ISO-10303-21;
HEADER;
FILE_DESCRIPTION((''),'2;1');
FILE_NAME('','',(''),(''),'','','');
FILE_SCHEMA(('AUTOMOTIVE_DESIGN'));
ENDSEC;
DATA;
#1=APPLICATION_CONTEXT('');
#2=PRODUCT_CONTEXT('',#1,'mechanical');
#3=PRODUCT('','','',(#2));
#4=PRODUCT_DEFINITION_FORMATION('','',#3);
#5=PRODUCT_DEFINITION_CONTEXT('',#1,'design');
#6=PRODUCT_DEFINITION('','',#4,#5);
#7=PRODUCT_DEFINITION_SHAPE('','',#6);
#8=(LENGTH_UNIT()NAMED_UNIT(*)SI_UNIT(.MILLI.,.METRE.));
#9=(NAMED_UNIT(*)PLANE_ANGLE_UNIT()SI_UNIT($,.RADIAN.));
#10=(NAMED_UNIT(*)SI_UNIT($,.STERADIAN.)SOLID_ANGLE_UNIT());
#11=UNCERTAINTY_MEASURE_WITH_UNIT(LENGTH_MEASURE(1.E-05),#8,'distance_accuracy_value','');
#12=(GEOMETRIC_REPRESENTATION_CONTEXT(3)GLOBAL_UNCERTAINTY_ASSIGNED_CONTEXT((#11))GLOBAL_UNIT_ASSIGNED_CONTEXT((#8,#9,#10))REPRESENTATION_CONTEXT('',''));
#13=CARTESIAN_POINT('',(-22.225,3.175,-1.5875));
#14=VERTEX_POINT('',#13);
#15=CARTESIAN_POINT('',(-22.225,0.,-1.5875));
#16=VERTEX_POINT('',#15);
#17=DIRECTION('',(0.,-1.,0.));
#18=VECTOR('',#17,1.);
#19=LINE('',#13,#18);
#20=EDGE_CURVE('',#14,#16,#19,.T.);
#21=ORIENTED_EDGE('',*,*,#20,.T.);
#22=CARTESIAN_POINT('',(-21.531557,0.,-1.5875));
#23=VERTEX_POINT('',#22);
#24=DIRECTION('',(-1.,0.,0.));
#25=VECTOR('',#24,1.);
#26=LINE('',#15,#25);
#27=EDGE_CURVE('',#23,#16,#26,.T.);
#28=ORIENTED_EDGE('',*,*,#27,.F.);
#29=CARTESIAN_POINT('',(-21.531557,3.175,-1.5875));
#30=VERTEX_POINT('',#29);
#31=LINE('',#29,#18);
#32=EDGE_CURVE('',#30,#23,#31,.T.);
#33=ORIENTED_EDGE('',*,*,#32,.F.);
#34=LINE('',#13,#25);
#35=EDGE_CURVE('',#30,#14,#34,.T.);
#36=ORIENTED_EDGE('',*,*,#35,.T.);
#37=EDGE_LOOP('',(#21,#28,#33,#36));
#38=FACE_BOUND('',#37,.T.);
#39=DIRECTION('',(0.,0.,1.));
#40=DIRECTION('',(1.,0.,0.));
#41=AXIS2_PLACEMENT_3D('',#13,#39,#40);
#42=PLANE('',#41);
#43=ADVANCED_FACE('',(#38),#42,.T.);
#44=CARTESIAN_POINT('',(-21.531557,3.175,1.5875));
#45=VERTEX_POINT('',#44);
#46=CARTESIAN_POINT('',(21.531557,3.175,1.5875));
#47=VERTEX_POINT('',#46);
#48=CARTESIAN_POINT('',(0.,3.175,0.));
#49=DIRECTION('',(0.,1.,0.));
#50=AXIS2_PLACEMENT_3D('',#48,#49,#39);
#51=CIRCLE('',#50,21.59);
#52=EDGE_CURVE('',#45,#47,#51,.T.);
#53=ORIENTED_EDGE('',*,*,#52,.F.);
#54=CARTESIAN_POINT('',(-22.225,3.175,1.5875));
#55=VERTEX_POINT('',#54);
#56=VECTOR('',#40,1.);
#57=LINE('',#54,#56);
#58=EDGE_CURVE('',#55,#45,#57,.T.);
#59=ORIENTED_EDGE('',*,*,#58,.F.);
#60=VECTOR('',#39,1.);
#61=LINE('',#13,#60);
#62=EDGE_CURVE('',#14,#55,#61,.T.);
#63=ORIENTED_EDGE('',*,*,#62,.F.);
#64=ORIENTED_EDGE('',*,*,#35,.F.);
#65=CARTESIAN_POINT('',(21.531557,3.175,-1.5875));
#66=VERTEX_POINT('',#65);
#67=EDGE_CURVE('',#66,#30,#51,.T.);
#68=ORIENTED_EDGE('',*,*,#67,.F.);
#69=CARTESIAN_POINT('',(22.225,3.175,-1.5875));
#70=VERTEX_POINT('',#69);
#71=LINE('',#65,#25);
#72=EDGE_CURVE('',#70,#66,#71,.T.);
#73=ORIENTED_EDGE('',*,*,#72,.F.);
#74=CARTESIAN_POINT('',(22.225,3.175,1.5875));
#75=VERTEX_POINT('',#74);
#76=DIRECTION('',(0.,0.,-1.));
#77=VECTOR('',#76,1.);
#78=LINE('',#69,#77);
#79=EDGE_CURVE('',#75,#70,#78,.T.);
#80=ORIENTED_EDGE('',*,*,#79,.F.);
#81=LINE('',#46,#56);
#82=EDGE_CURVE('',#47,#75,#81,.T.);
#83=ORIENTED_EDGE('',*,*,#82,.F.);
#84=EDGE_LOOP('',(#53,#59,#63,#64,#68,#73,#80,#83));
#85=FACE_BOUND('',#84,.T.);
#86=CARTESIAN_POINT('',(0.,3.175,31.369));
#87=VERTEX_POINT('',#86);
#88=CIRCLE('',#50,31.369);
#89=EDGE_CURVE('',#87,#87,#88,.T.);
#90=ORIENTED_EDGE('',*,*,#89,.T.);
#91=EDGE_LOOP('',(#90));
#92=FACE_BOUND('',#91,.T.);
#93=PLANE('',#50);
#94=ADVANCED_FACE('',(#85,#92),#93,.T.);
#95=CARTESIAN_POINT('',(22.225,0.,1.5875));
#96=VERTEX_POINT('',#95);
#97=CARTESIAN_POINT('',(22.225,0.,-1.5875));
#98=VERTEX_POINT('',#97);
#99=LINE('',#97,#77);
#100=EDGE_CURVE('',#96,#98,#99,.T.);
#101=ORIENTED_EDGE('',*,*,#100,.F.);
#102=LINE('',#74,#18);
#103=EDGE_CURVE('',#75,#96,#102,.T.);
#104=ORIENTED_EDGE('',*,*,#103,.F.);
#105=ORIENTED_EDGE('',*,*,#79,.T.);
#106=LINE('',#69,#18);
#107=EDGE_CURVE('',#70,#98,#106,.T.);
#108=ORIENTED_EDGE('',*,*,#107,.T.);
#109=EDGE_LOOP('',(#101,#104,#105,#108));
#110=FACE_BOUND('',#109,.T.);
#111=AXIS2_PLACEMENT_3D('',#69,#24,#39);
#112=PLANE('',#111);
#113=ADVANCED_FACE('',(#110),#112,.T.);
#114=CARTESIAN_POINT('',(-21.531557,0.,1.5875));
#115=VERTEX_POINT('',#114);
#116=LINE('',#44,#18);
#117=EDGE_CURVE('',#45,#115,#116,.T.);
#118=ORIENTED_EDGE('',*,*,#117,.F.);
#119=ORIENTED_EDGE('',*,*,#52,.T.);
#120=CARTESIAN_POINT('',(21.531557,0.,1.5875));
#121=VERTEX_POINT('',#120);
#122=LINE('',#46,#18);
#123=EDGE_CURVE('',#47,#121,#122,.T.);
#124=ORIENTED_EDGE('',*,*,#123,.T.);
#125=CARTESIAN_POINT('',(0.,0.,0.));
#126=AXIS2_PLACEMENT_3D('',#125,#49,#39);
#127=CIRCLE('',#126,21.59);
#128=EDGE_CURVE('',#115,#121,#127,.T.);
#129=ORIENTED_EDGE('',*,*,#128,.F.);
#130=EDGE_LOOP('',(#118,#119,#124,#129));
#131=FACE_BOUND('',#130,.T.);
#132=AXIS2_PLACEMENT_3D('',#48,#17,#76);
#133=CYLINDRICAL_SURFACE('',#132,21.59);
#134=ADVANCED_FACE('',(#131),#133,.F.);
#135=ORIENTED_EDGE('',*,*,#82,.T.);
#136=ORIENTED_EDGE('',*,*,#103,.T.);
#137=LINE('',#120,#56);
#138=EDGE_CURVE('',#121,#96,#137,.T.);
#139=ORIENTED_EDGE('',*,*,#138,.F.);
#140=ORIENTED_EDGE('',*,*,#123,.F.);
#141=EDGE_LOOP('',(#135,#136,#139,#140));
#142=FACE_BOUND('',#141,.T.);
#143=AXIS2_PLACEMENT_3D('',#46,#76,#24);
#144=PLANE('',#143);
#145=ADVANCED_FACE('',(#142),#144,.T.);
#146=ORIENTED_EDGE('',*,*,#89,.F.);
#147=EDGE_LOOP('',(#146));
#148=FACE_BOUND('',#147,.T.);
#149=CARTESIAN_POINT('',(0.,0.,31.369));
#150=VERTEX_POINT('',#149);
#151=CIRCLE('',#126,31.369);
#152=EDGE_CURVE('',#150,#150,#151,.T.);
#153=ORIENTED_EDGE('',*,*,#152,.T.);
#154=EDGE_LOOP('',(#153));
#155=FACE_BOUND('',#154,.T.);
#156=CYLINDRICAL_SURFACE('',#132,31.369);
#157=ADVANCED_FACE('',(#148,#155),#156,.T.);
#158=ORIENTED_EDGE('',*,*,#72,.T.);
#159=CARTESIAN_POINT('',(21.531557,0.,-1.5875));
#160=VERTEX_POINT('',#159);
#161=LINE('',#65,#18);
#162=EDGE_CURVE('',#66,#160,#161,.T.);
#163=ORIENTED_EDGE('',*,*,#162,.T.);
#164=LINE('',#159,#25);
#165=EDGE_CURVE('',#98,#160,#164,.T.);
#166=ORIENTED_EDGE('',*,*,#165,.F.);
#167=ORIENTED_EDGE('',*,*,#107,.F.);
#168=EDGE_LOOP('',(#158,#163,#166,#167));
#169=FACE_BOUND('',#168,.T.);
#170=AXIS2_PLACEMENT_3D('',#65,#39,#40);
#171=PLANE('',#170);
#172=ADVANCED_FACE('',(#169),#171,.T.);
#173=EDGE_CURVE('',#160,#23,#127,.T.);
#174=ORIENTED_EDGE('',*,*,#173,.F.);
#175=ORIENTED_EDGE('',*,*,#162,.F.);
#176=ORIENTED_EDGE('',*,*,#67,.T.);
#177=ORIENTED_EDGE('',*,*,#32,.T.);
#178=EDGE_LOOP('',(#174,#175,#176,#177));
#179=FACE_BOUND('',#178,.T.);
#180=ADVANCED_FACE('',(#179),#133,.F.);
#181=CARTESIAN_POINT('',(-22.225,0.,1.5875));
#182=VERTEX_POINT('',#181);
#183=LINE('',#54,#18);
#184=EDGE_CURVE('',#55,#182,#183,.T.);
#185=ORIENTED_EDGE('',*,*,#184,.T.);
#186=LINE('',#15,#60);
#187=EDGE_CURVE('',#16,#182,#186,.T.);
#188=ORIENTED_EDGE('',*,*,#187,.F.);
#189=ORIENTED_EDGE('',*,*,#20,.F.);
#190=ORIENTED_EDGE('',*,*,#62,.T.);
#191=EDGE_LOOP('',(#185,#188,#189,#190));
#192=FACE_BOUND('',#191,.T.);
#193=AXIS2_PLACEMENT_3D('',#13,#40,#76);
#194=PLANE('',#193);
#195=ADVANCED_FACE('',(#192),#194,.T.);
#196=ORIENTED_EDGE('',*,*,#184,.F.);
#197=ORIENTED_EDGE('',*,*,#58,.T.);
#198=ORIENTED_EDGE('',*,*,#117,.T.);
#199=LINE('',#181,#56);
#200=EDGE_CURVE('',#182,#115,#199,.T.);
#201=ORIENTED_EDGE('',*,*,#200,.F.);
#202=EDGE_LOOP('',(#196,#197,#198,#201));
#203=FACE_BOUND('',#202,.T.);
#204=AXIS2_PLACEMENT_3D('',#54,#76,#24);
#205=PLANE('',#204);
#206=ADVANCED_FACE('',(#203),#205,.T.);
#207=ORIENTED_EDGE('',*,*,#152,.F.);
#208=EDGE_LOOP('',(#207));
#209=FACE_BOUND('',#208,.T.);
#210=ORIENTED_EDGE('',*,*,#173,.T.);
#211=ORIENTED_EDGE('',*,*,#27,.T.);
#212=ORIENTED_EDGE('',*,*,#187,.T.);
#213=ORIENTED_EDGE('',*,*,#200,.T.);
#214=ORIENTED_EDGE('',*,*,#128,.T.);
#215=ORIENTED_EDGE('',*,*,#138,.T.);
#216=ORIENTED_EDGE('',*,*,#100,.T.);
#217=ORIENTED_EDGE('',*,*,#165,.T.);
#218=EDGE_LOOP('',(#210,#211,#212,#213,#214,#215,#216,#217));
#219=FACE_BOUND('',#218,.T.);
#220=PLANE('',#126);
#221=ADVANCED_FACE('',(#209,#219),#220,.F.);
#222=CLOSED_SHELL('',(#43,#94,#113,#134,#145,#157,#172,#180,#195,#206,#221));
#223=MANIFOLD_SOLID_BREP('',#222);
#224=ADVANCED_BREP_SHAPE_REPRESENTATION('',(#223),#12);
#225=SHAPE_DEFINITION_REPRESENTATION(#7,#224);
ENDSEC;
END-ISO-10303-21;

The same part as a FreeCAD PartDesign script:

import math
import FreeCAD as App
import Part
import Sketcher

V = App.Vector
Q = App.Units.Quantity

doc = App.newDocument("Part")
body = doc.addObject("PartDesign::Body", "Body")

# Sketch on XZ plane
sketch1 = body.newObject("Sketcher::SketchObject", "Sketch")
sketch1.AttachmentSupport = (doc.getObject("XZ_Plane"), [""])
sketch1.MapMode = "FlatFace"
sketch1.addGeometry([
    Part.Circle(V(0, 0, 0), V(0, 0, 1), 31.369),  # 0
    Part.LineSegment(V(-22.225, 1.5875, 0), V(-22.225, -1.5875, 0)),  # 1
    Part.LineSegment(V(-22.225, -1.5875, 0), V(-21.531557, -1.5875, 0)),  # 2
    Part.ArcOfCircle(Part.Circle(V(0, 0, 0), V(0, 0, 1), 21.59), math.radians(-175.78327), math.radians(-4.21673)),  # 3
    Part.LineSegment(V(21.531557, -1.5875, 0), V(22.225, -1.5875, 0)),  # 4
    Part.LineSegment(V(22.225, -1.5875, 0), V(22.225, 1.5875, 0)),  # 5
    Part.LineSegment(V(22.225, 1.5875, 0), V(21.531557, 1.5875, 0)),  # 6
    Part.ArcOfCircle(Part.Circle(V(0, 0, 0), V(0, 0, 1), 21.59), math.radians(4.21673), math.radians(175.78327)),  # 7
    Part.LineSegment(V(-21.531557, 1.5875, 0), V(-22.225, 1.5875, 0)),  # 8
], False)
sketch1.addConstraint([
    Sketcher.Constraint("Coincident", 1, 2, 2, 1),
    Sketcher.Constraint("Coincident", 2, 2, 3, 1),
    Sketcher.Constraint("Coincident", 3, 2, 4, 1),
    Sketcher.Constraint("Coincident", 4, 2, 5, 1),
    Sketcher.Constraint("Coincident", 5, 2, 6, 1),
    Sketcher.Constraint("Coincident", 6, 2, 7, 1),
    Sketcher.Constraint("Coincident", 7, 2, 8, 1),
    Sketcher.Constraint("Coincident", 8, 2, 1, 1),
    Sketcher.Constraint("Vertical", 1),
    Sketcher.Constraint("Horizontal", 2),
    Sketcher.Constraint("Horizontal", 4),
    Sketcher.Constraint("Vertical", 5),
    Sketcher.Constraint("Horizontal", 6),
    Sketcher.Constraint("Horizontal", 8),
    Sketcher.Constraint("Coincident", 0, 3, -1, 1),
    Sketcher.Constraint("Coincident", 3, 3, -1, 1),
    Sketcher.Constraint("Coincident", 7, 3, -1, 1),
    Sketcher.Constraint("Equal", 3, 7),
    Sketcher.Constraint("Symmetric", 1, 2, 5, 2, -1, 1),
    Sketcher.Constraint("Horizontal", 2, 2, 3, 2),
    Sketcher.Constraint("Horizontal", 6, 2, 7, 2),
    Sketcher.Constraint("Diameter", 0, Q("2.47 in")),
    Sketcher.Constraint("Radius", 3, Q("0.85 in")),
    Sketcher.Constraint("DistanceY", 1, 2, 1, 1, Q("0.125 in")),
    Sketcher.Constraint("DistanceX", 1, 2, -1, 1, Q("0.875 in")),
])
pad1 = body.newObject("PartDesign::Pad", "Pad")
pad1.Profile = sketch1
pad1.Length = Q("0.125 in")
pad1.Reversed = True

doc.recompute()
